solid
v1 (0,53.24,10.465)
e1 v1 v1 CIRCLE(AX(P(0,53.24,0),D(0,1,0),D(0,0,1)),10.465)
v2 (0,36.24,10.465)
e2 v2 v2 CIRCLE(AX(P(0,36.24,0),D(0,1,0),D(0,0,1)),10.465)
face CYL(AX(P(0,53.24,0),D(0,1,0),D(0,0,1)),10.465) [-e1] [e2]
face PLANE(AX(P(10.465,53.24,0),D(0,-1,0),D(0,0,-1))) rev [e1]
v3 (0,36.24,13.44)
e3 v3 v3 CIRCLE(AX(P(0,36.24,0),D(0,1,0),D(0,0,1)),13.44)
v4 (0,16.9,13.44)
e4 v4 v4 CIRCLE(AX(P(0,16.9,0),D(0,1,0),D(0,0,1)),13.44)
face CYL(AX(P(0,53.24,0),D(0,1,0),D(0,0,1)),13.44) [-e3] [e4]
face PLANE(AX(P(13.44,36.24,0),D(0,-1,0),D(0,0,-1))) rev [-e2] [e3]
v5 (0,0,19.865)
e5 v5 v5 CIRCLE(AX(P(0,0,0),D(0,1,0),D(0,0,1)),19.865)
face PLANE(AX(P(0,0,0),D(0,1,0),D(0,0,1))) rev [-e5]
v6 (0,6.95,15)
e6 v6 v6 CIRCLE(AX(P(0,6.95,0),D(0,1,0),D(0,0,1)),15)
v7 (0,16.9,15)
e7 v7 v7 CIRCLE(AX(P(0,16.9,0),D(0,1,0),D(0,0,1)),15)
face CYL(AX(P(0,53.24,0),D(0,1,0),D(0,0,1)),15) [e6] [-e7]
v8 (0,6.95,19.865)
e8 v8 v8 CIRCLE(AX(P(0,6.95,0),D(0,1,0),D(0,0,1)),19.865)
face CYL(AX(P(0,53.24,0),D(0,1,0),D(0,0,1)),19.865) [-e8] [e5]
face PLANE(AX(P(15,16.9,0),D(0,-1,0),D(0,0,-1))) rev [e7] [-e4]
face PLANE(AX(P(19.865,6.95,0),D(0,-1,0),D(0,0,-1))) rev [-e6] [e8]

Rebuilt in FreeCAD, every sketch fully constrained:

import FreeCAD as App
import Part
import Sketcher


def add_polygon(sketch, points):
    """Adds a closed chain of lines whose ends are joined by coincident constraints."""
    first, n = sketch.GeometryCount, len(points)
    for a, b in zip(points, points[1:] + points[:1]):
        sketch.addGeometry(Part.LineSegment(App.Vector(*a, 0), App.Vector(*b, 0)), False)
    for i in range(n):
        sketch.addConstraint(Sketcher.Constraint("Coincident", first + i, 2, first + (i + 1) % n, 1))

doc = App.newDocument("Part")
body = doc.addObject("PartDesign::Body", "Body")

sketch1 = doc.addObject("Sketcher::SketchObject", "Sketch")
body.addObject(sketch1)
sketch1.AttachmentSupport = (doc.XY_Plane, [""])
sketch1.MapMode = "FlatFace"
add_polygon(sketch1, [(0, 0), (19.9, 0), (19.9, 7), (15, 7), (15, 16.9), (13.4, 16.9), (13.4, 36.2), (10.5, 36.2), (10.5, 53.2), (0, 53.2)])
sketch1.addConstraint([
    Sketcher.Constraint("Horizontal", 0),
    Sketcher.Constraint("Vertical", 1),
    Sketcher.Constraint("Horizontal", 2),
    Sketcher.Constraint("Vertical", 3),
    Sketcher.Constraint("Horizontal", 4),
    Sketcher.Constraint("Vertical", 5),
    Sketcher.Constraint("Horizontal", 6),
    Sketcher.Constraint("Vertical", 7),
    Sketcher.Constraint("Horizontal", 8),
    Sketcher.Constraint("Vertical", 9),
    Sketcher.Constraint("Coincident", 9, 2, -1, 1),
    Sketcher.Constraint("DistanceY", 7, 1, 7, 2, 17.0),
    Sketcher.Constraint("DistanceX", -1, 1, 2, 2, 15.0),
    Sketcher.Constraint("DistanceX", 4, 2, 4, 1, 1.56),
    Sketcher.Constraint("DistanceY", 1, 1, 1, 2, 6.95),
    Sketcher.Constraint("DistanceY", 3, 1, 3, 2, 9.95),
    Sketcher.Constraint("DistanceY", 5, 1, 5, 2, 19.34),
    Sketcher.Constraint("DistanceX", 6, 2, 1, 2, 9.4),
    Sketcher.Constraint("DistanceX", 0, 1, 0, 2, 19.865),
])
revolution = doc.addObject("PartDesign::Revolution", "Revolution")
body.addObject(revolution)
revolution.Profile = sketch1
revolution.ReferenceAxis = (sketch1, ["V_Axis"])
revolution.Angle = 360

doc.recompute()
